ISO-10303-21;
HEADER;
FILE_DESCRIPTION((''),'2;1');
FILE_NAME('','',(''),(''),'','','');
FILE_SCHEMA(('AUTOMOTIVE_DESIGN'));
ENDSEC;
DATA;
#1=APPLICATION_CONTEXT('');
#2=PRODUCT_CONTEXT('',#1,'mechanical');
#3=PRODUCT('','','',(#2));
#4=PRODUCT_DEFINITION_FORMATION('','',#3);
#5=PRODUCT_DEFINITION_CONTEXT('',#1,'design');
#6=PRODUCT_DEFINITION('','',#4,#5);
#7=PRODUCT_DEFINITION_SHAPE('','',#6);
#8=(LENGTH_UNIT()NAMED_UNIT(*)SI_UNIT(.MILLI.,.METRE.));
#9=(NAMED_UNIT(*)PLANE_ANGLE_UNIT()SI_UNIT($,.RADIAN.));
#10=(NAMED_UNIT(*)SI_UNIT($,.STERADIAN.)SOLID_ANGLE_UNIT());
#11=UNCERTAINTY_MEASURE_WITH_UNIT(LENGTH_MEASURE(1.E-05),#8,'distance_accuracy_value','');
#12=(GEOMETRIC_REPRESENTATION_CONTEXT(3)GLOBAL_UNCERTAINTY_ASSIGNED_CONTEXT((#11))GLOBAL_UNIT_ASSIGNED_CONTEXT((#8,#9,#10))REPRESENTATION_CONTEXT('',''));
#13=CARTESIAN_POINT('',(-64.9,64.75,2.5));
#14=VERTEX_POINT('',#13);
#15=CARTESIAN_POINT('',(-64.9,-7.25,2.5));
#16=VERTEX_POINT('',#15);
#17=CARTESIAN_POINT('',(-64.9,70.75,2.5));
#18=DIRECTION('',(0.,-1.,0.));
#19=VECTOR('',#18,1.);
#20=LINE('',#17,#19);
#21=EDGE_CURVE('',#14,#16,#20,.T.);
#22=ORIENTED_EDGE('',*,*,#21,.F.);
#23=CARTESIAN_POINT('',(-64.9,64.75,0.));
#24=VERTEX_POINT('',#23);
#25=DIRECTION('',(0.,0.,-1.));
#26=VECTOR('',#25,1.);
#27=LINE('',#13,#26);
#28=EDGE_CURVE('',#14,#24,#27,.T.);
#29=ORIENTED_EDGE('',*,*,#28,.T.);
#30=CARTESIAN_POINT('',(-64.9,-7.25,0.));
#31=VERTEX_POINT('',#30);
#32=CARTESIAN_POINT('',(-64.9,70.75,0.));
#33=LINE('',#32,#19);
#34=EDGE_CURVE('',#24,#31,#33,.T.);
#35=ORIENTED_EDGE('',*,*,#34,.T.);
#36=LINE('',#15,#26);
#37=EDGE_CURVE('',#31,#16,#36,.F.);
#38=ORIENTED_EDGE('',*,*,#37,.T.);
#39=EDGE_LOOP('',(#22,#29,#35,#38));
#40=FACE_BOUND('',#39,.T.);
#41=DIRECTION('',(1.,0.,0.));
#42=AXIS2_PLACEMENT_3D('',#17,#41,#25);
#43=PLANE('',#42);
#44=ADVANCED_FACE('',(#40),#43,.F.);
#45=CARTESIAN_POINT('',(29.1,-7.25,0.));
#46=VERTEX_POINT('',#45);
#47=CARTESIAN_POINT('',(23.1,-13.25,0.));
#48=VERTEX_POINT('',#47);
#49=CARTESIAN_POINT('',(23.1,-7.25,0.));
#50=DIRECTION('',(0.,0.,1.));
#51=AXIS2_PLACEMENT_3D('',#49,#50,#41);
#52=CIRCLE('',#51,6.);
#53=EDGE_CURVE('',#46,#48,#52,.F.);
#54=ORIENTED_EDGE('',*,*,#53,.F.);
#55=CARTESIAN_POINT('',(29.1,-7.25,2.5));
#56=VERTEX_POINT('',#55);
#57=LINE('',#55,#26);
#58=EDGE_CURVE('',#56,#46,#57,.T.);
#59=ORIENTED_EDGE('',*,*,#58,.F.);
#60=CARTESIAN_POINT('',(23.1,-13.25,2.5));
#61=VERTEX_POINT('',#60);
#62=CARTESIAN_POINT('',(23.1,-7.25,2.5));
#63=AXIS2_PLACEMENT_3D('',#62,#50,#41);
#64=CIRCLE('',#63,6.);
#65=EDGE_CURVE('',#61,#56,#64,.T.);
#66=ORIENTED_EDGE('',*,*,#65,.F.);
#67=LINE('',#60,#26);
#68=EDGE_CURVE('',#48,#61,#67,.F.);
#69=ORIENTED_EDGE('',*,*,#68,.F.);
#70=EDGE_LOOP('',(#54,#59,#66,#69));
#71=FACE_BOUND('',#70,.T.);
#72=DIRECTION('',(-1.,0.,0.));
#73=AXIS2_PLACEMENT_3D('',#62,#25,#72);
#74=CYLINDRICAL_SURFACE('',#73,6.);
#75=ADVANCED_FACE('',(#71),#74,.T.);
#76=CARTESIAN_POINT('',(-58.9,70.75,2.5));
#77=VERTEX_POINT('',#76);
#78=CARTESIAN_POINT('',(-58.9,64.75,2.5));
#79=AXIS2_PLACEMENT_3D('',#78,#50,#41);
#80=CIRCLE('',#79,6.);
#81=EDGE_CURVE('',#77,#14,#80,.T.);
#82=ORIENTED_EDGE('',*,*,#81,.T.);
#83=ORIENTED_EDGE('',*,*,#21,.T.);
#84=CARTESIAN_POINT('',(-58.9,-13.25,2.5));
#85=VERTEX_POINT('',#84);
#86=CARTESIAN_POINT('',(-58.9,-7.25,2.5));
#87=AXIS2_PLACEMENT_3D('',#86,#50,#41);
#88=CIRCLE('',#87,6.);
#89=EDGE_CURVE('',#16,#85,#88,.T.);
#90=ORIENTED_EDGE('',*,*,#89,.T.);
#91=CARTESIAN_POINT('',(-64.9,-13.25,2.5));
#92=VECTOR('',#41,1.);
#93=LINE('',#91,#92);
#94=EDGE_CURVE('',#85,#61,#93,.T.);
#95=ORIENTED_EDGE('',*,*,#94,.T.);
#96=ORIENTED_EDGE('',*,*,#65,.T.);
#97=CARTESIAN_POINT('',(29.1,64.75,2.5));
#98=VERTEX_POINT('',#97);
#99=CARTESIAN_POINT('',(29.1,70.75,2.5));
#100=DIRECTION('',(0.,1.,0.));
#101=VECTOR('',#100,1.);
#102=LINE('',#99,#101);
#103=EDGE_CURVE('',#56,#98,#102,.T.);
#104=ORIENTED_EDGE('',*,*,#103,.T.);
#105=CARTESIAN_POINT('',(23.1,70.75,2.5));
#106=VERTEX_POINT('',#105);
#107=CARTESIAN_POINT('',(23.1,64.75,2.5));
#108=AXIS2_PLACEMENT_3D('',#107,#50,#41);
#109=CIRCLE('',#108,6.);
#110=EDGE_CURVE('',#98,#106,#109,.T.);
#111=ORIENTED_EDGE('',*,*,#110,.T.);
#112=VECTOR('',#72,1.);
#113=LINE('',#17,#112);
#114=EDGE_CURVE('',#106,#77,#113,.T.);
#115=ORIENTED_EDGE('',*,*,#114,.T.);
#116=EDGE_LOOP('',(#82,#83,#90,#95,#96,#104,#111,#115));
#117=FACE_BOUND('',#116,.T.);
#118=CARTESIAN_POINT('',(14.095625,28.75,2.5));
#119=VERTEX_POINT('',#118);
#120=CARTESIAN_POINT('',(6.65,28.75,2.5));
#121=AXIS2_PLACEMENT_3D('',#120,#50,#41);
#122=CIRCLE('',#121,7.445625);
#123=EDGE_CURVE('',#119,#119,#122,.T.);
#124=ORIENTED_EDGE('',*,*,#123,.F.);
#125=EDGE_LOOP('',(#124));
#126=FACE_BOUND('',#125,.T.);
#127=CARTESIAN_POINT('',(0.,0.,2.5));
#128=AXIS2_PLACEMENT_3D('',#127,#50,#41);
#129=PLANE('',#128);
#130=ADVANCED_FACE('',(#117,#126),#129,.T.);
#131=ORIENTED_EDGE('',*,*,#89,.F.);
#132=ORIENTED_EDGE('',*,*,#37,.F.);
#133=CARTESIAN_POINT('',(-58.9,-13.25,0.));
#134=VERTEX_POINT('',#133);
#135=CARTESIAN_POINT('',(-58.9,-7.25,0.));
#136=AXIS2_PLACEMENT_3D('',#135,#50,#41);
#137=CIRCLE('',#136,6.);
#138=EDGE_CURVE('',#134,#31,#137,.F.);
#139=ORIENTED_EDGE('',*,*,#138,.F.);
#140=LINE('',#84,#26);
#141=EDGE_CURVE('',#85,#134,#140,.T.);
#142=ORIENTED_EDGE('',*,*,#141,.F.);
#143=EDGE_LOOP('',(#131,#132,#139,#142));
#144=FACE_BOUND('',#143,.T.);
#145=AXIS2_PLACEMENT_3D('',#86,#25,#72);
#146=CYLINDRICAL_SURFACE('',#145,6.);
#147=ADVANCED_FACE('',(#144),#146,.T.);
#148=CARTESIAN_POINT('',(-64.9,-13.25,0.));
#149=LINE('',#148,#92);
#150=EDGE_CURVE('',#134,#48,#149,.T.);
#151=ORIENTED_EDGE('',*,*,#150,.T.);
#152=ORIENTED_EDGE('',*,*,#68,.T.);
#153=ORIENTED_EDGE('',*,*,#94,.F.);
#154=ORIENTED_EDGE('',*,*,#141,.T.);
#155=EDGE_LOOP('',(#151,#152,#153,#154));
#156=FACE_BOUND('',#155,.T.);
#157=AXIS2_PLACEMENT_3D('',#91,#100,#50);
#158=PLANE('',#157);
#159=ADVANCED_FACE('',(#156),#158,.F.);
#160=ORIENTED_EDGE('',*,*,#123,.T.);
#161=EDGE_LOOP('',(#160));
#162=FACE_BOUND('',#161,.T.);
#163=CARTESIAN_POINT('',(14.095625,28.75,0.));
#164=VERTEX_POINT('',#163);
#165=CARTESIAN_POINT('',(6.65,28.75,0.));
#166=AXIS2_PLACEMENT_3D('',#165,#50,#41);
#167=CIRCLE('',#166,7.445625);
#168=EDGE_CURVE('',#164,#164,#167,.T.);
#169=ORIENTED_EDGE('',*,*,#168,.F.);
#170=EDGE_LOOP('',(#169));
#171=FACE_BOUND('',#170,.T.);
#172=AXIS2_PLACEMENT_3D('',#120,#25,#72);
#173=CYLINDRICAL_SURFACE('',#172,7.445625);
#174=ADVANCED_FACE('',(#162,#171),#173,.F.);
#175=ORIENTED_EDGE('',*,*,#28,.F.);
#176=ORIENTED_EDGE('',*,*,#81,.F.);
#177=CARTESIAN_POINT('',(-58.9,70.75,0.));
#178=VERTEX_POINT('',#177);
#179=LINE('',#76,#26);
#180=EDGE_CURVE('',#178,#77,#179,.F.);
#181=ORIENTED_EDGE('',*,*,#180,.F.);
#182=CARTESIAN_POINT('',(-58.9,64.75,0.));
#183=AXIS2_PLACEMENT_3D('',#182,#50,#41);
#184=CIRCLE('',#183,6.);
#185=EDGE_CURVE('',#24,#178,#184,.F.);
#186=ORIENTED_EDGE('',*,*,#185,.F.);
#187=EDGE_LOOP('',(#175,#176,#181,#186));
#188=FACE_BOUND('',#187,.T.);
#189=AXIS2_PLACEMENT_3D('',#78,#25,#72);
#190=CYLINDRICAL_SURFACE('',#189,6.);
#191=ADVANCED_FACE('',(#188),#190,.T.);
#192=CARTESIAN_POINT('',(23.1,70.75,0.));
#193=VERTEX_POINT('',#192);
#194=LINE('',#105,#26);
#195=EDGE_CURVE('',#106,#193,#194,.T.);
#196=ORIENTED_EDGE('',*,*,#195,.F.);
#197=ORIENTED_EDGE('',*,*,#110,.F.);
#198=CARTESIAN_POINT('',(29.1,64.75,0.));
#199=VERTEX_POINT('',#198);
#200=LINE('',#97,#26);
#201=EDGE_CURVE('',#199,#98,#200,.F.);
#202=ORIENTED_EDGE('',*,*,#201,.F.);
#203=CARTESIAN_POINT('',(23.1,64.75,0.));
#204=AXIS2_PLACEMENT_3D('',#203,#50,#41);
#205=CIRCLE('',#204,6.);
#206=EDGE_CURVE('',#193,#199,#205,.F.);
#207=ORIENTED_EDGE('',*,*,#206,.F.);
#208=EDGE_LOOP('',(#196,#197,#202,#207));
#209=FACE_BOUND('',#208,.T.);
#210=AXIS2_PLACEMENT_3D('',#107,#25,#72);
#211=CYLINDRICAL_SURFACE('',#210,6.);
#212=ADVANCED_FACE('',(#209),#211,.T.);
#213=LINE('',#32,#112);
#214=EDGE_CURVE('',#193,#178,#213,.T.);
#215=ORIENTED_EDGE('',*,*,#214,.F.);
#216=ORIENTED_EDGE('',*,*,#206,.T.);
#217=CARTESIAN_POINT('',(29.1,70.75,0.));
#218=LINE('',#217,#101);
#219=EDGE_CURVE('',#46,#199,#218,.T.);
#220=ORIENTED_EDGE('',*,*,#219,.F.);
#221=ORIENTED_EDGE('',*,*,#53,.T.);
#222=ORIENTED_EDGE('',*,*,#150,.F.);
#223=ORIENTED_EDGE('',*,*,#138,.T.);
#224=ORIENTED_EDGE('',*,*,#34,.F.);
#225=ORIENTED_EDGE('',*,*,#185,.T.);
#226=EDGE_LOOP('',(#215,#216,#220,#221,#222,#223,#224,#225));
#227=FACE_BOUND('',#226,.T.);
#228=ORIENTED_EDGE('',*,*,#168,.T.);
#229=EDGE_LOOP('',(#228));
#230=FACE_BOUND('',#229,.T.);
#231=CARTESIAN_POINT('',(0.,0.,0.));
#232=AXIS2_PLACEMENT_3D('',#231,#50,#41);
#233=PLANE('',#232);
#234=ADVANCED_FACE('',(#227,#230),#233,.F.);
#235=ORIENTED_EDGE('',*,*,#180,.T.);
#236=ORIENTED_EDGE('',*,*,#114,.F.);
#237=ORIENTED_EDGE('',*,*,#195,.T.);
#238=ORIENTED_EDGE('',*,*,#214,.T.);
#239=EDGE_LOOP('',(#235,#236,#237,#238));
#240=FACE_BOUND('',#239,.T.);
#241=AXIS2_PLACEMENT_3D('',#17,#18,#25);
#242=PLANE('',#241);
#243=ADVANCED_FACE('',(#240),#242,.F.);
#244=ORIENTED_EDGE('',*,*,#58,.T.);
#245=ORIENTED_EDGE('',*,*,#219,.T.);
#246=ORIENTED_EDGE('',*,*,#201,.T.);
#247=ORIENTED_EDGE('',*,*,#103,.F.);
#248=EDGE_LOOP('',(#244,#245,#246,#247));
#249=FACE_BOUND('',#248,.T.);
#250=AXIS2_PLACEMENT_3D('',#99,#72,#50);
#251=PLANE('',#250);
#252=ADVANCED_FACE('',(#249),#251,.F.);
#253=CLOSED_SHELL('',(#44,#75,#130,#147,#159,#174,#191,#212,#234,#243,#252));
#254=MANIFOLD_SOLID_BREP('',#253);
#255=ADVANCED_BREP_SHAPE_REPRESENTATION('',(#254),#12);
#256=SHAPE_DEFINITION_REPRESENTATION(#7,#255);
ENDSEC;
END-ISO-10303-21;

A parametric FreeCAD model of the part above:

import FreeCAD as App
import Part
import Sketcher
from FreeCAD import Vector
Q = App.Units.Quantity


def edges_at(feature, points):
    """Names of the edges that pass closest to the given points."""
    edges = feature.Shape.Edges
    near = lambda p: min(range(len(edges)), key=lambda i: edges[i].distToShape(Part.Vertex(*p))[0])
    return sorted({f"Edge{near(p) + 1}" for p in points})

doc = App.newDocument("Part")
body = doc.addObject("PartDesign::Body", "Body")

# Sketch on XY plane
sketch1 = body.newObject("Sketcher::SketchObject", "Sketch")
sketch1.AttachmentSupport = (doc.getObject("XY_Plane"), [""])
sketch1.MapMode = "FlatFace"
sketch1.addGeometry(Part.LineSegment(Vector(-65, 71, 0), Vector(-65, -13, 0)), False)
sketch1.addGeometry(Part.LineSegment(Vector(-65, -13, 0), Vector(29, -13, 0)), False)
sketch1.addGeometry(Part.LineSegment(Vector(29, -13, 0), Vector(29, 71, 0)), False)
sketch1.addGeometry(Part.LineSegment(Vector(29, 71, 0), Vector(-65, 71, 0)), False)
sketch1.addGeometry(Part.Circle(Vector(7, 29, 0), Vector(0, 0, 1), 7), False)
sketch1.addConstraint(Sketcher.Constraint("Coincident", 0, 2, 1, 1))
sketch1.addConstraint(Sketcher.Constraint("Coincident", 1, 2, 2, 1))
sketch1.addConstraint(Sketcher.Constraint("Coincident", 2, 2, 3, 1))
sketch1.addConstraint(Sketcher.Constraint("Coincident", 3, 2, 0, 1))
sketch1.addConstraint(Sketcher.Constraint("Vertical", 0))
sketch1.addConstraint(Sketcher.Constraint("Horizontal", 1))
sketch1.addConstraint(Sketcher.Constraint("Vertical", 2))
sketch1.addConstraint(Sketcher.Constraint("Horizontal", 3))
sketch1.addConstraint(Sketcher.Constraint("DistanceX", 1, 1, 1, 2, Q("94 mm")))
sketch1.addConstraint(Sketcher.Constraint("DistanceY", 0, 2, 0, 1, Q("84 mm")))
sketch1.addConstraint(Sketcher.Constraint("DistanceY", 0, 2, 4, 3, Q("42 mm")))
sketch1.addConstraint(Sketcher.Constraint("DistanceX", 0, 2, -1, 1, Q("64.9 mm")))
sketch1.addConstraint(Sketcher.Constraint("Diameter", 4, Q("14.891249 mm")))
sketch1.addConstraint(Sketcher.Constraint("DistanceX", -1, 1, 4, 3, Q("6.65 mm")))
sketch1.addConstraint(Sketcher.Constraint("DistanceY", -1, 1, 4, 3, Q("28.75 mm")))
pad1 = body.newObject("PartDesign::Pad", "Pad")
pad1.Profile = sketch1
pad1.Length = 2.5
doc.recompute()

fillet = body.newObject("PartDesign::Fillet", "Fillet")
fillet.Base = (pad1, edges_at(pad1, [
    (-64.9, 70.75, 1.25),
    (29.1, 70.75, 1.25),
    (29.1, -13.25, 1.25),
    (-64.9, -13.25, 1.25),
]))
fillet.Radius = 6

doc.recompute()
